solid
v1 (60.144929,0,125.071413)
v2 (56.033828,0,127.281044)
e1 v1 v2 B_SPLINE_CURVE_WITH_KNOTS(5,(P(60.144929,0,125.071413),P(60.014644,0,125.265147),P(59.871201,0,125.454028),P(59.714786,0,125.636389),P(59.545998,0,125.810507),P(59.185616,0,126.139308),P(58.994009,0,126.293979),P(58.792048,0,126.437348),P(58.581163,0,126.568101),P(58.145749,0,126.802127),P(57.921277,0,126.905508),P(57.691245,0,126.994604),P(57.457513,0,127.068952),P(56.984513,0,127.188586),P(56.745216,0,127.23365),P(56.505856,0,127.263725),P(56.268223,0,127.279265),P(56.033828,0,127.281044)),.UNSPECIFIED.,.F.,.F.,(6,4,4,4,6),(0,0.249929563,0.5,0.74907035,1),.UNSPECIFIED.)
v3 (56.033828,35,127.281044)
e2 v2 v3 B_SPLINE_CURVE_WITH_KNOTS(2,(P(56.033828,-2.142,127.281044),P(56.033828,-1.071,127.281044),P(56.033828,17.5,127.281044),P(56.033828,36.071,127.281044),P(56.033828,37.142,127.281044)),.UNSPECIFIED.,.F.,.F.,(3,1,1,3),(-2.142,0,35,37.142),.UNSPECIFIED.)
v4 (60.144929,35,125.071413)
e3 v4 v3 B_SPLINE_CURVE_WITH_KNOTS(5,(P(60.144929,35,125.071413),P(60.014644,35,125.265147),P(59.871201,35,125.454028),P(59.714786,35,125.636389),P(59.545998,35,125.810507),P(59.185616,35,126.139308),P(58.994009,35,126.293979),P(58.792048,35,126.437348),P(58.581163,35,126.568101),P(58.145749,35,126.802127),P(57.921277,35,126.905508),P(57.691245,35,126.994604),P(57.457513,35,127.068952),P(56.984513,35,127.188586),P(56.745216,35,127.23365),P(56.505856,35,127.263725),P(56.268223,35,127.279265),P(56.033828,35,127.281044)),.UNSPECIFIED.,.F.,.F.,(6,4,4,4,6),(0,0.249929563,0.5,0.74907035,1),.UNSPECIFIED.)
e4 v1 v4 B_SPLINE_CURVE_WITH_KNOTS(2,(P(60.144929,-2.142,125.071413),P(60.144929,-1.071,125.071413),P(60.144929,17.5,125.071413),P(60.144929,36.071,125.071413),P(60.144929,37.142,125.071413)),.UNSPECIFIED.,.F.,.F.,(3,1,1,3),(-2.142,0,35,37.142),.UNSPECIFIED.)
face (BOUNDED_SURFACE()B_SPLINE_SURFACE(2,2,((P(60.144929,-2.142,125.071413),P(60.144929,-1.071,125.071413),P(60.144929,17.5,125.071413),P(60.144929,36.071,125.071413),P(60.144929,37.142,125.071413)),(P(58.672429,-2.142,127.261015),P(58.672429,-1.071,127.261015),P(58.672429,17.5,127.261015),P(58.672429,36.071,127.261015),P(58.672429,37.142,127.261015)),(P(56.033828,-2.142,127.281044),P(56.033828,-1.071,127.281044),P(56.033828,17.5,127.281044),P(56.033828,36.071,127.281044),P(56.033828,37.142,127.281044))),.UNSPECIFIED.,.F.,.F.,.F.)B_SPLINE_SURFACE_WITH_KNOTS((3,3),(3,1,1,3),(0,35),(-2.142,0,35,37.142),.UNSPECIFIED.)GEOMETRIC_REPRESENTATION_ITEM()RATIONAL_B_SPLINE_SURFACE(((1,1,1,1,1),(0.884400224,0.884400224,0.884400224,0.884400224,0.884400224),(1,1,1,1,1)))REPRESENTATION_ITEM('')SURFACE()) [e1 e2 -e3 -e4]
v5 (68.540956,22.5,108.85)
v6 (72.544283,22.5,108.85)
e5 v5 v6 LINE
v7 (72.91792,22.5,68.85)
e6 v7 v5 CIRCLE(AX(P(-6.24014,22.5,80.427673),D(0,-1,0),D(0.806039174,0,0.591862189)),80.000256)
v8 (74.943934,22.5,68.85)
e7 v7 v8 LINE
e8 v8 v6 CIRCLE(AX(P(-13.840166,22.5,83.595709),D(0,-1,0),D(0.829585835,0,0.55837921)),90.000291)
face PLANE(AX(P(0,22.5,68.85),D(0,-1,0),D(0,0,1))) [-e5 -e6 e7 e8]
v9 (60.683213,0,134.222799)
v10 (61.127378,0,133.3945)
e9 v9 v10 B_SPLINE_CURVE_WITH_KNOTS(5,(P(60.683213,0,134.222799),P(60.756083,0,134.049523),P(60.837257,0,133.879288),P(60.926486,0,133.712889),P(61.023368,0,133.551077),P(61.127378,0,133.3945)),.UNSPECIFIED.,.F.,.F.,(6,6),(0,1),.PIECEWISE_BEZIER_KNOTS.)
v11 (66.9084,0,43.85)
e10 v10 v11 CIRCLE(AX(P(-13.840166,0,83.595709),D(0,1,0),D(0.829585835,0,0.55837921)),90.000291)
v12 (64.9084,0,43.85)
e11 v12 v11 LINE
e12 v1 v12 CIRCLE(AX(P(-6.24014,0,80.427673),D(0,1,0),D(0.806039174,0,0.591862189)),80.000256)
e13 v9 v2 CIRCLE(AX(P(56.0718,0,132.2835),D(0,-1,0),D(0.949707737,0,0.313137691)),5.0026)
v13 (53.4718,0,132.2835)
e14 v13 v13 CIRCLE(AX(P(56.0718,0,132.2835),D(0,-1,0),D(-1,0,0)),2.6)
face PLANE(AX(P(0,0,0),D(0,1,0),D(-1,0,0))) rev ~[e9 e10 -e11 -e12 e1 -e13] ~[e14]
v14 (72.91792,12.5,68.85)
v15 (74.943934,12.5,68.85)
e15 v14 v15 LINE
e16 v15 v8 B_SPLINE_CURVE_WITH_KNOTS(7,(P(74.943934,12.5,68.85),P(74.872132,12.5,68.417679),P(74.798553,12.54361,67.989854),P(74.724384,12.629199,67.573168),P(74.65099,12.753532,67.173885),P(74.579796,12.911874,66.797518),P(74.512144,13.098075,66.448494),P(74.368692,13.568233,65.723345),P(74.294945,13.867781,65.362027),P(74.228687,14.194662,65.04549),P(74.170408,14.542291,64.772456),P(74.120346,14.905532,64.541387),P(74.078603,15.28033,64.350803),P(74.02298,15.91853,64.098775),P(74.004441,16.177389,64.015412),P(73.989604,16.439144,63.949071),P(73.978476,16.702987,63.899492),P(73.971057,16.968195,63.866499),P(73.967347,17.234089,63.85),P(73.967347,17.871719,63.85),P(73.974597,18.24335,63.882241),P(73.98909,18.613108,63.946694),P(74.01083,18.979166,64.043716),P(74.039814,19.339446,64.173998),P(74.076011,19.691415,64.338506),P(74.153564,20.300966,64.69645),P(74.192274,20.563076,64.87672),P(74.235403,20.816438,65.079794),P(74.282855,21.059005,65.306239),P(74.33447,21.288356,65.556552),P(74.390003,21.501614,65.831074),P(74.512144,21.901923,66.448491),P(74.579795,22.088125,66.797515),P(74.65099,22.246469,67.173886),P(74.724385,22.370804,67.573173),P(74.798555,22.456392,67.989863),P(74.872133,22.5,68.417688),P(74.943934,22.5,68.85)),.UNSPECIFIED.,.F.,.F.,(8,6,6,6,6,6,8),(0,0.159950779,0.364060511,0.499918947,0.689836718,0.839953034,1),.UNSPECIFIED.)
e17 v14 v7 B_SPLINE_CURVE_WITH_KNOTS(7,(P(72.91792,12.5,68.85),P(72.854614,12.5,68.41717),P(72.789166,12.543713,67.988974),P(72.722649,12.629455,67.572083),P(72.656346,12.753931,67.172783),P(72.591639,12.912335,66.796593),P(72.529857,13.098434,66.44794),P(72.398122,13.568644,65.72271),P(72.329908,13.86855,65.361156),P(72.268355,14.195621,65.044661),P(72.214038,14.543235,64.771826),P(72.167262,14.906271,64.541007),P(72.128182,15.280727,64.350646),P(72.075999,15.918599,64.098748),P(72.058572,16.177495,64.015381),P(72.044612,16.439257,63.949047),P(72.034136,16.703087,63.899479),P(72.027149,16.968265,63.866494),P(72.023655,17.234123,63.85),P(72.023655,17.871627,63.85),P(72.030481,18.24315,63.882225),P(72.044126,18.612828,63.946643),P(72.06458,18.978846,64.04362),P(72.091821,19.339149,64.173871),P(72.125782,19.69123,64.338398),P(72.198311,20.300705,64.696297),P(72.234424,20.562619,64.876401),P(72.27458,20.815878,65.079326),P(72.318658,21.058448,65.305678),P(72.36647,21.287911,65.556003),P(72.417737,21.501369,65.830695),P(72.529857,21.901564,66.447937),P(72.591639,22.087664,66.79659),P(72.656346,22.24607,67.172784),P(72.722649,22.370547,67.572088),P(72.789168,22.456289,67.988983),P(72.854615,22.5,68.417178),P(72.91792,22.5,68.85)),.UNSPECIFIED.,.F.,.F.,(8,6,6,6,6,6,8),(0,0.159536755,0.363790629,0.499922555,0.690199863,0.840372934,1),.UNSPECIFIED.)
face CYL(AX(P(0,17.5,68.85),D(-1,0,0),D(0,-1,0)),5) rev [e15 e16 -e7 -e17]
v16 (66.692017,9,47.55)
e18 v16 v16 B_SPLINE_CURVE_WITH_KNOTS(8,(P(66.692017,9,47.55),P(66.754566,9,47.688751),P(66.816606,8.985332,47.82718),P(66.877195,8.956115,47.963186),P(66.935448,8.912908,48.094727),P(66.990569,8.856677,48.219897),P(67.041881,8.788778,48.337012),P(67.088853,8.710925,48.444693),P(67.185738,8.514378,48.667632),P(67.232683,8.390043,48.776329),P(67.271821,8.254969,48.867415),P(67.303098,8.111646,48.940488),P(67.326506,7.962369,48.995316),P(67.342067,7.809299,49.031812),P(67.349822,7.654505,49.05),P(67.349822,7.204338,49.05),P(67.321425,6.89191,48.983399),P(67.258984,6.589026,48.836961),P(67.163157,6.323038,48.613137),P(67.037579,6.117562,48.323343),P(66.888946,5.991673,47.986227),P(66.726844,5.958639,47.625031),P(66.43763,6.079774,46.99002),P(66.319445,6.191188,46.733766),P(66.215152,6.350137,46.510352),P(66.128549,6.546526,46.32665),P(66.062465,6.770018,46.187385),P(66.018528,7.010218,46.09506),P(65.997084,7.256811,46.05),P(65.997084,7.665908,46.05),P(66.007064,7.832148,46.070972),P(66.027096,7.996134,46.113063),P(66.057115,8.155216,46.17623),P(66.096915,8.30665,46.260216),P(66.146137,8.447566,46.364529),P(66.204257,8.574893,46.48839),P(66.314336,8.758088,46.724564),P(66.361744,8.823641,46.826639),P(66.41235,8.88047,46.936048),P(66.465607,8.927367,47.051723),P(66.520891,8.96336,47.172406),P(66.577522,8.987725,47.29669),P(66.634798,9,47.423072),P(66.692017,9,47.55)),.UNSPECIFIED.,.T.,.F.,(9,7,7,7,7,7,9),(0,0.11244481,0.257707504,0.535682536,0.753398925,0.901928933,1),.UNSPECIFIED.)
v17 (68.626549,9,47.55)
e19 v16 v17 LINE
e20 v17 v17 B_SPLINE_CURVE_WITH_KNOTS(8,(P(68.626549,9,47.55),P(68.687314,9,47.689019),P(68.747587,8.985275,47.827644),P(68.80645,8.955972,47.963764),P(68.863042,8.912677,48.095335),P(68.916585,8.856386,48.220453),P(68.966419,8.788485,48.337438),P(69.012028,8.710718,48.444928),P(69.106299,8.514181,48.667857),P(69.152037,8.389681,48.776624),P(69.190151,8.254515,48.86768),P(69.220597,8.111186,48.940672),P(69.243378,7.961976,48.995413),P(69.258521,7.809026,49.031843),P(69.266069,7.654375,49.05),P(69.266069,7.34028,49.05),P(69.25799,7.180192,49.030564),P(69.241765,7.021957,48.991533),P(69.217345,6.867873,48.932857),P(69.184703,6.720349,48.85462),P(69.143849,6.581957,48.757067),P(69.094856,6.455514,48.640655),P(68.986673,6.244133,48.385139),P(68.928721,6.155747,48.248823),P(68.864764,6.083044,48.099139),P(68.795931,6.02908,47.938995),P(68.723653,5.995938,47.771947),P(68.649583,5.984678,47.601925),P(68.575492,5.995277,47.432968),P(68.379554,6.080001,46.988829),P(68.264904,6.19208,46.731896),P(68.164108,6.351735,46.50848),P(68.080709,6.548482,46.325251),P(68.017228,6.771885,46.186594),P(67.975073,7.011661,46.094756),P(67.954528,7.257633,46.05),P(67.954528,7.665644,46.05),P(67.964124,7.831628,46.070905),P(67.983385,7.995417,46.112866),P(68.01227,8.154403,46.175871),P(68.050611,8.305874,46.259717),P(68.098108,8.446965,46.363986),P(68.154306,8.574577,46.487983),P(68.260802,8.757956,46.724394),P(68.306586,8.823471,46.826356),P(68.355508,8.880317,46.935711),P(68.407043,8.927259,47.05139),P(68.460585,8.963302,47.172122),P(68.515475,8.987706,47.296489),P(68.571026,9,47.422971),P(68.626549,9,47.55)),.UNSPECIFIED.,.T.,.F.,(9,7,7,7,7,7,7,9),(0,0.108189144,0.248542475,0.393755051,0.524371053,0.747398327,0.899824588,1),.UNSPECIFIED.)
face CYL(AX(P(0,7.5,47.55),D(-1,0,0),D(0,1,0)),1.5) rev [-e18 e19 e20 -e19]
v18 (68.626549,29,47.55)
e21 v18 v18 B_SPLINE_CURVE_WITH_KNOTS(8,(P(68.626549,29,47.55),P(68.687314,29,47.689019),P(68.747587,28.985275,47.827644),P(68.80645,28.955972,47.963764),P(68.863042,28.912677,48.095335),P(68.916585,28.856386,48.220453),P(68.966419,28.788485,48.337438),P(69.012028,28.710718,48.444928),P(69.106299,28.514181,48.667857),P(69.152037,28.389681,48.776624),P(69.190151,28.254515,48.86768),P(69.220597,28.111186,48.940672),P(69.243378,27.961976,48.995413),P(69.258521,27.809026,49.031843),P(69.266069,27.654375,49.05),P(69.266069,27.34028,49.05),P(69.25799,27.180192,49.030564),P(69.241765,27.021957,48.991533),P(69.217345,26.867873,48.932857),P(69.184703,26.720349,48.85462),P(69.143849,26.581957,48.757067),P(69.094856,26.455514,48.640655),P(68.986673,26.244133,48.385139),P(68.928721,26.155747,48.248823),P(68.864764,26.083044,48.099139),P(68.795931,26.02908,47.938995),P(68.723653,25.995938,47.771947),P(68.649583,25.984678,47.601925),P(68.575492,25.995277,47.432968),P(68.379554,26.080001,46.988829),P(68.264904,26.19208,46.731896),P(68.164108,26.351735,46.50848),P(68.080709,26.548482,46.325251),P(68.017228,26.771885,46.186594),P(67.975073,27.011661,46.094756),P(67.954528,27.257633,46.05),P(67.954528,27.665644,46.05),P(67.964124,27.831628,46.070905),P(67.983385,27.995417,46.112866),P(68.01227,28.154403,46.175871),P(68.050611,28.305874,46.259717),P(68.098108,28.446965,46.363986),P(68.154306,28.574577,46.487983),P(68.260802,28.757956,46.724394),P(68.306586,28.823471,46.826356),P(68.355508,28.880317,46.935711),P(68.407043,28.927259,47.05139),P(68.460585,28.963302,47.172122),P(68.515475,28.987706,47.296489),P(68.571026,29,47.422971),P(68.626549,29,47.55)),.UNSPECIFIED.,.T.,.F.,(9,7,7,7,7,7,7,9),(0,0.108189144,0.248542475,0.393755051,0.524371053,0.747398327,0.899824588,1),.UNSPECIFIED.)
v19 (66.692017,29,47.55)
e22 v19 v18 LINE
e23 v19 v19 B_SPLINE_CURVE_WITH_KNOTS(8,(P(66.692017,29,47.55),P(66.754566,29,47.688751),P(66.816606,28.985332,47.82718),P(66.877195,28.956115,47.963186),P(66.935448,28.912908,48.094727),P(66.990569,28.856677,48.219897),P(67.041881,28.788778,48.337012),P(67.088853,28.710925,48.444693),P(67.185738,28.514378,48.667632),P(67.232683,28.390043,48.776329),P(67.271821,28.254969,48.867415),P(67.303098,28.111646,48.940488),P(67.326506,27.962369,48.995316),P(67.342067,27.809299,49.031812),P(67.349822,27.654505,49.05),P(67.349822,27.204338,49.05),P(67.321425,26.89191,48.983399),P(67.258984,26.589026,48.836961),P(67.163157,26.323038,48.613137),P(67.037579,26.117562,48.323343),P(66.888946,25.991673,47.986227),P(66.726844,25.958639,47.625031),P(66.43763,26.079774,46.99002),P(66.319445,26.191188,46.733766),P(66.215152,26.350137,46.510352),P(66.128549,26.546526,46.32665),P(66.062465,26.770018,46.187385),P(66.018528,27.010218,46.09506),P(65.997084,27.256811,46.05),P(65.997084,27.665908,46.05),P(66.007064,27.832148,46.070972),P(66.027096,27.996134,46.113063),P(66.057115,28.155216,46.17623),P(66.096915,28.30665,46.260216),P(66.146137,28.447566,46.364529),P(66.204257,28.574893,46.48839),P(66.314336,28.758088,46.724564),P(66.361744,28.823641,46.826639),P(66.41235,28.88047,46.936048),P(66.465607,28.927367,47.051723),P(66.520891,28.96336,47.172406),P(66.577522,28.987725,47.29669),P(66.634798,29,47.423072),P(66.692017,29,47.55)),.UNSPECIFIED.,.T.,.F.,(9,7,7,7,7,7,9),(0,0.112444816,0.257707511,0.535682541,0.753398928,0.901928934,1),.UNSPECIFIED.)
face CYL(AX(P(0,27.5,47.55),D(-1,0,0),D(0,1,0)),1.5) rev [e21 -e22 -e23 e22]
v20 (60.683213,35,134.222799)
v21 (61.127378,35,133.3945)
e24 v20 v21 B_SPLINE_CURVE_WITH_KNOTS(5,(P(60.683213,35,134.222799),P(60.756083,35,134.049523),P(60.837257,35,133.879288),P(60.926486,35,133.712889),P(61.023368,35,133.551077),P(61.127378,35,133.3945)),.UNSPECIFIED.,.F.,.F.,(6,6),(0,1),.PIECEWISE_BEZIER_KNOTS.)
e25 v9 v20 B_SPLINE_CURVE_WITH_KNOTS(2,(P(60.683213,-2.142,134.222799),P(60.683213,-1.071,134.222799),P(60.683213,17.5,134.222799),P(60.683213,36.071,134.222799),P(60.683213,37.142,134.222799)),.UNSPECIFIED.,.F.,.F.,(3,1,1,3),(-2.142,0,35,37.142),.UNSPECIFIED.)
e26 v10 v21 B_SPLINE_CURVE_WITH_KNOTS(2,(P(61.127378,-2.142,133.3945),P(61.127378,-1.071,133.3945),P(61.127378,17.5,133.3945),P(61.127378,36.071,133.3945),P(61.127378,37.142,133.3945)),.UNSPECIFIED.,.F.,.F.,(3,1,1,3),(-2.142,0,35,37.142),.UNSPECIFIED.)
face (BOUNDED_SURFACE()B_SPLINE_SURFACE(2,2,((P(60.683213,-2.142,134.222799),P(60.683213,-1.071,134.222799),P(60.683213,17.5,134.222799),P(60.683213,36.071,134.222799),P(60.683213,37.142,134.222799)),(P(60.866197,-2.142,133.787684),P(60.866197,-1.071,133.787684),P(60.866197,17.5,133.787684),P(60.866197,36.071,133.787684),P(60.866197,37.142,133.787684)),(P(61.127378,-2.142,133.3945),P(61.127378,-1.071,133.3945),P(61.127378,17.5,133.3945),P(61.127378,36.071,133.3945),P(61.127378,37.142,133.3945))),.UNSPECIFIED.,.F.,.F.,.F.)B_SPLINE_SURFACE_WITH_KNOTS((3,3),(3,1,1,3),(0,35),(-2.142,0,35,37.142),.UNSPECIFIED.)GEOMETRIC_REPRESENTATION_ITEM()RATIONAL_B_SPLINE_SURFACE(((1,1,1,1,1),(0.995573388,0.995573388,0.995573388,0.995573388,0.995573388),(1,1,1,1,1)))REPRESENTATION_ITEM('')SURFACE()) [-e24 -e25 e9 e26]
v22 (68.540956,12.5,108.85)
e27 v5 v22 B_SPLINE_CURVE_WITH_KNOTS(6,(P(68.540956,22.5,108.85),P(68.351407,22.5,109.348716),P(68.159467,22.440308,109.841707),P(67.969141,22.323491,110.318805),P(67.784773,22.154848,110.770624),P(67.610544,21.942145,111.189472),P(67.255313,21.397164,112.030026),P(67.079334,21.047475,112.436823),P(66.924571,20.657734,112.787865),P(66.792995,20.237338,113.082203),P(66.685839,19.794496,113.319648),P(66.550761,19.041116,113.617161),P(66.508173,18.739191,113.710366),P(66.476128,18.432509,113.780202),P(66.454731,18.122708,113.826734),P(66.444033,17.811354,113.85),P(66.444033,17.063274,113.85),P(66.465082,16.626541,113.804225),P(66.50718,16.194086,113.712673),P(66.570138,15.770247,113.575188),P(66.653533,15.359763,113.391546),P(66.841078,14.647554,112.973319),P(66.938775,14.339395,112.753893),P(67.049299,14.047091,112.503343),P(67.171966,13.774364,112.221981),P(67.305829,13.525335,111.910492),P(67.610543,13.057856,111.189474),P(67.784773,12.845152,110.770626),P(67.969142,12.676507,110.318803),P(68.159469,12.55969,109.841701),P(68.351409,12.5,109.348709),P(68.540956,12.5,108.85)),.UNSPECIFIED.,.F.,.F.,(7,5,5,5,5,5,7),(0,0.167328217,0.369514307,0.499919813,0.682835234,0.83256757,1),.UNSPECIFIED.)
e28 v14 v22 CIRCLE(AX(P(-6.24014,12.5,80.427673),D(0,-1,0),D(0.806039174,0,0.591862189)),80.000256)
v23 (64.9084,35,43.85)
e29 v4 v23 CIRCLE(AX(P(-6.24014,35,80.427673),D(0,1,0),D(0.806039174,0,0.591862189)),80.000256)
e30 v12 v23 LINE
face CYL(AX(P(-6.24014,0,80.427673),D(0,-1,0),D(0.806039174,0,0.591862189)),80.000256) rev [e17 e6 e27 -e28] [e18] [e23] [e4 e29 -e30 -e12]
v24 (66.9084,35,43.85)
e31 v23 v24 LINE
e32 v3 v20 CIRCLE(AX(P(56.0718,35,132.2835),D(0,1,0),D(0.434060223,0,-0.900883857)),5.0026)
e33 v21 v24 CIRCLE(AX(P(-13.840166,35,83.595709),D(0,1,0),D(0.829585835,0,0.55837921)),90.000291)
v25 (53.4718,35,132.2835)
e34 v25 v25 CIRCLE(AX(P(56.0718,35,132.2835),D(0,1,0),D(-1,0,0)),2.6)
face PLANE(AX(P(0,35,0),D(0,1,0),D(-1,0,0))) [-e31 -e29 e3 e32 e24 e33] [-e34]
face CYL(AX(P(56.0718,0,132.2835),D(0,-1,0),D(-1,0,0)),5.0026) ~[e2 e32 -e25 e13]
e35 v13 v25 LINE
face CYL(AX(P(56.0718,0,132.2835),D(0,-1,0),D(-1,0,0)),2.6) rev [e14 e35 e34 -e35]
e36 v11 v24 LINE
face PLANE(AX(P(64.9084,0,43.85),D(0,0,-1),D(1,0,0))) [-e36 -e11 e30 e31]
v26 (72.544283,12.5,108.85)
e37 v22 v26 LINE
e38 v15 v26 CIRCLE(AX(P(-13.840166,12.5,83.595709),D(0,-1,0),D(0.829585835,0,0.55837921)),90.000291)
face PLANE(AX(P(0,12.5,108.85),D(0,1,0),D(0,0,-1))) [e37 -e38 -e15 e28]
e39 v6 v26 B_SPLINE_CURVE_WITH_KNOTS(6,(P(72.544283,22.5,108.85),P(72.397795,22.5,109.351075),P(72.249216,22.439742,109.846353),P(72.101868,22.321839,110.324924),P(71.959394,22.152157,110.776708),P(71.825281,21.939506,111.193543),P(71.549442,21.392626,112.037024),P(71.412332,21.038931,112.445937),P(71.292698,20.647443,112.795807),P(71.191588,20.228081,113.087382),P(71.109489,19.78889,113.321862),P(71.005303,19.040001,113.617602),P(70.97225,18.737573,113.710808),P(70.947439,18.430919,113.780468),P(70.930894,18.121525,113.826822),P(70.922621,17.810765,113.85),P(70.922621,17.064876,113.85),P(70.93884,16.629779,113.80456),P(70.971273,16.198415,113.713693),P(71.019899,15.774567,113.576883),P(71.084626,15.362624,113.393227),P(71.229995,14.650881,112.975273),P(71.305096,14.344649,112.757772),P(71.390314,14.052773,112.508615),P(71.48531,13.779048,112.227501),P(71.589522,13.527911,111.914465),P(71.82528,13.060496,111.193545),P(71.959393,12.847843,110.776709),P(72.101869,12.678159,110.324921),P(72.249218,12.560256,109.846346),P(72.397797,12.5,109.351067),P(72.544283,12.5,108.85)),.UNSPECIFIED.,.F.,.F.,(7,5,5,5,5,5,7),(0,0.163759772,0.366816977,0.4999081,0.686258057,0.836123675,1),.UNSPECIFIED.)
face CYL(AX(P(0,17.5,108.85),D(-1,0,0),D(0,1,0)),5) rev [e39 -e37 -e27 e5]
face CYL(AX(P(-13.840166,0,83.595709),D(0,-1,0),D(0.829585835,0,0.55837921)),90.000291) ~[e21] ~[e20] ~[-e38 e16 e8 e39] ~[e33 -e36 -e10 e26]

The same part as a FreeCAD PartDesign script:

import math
import FreeCAD as App
import Part
import Sketcher

V = App.Vector


def edges_at(feature, points):
    """Names of the edges that pass closest to the given points."""
    edges = feature.Shape.Edges
    near = lambda p: min(range(len(edges)), key=lambda i: edges[i].distToShape(Part.Vertex(*p))[0])
    return sorted({f"Edge{near(p) + 1}" for p in points})

doc = App.newDocument("Part")
body = doc.addObject("PartDesign::Body", "Body")

sketch1 = body.newObject("Sketcher::SketchObject", "Sketch")
sketch1.AttachmentSupport = (doc.getObject("XZ_Plane"), [""])
sketch1.MapMode = "FlatFace"
sketch1.addGeometry(Part.ArcOfCircle(Part.Circle(V(-13.8, 83.6, 0), V(0, 0, 1), 90), math.radians(-26), math.radians(34)), False)
sketch1.addGeometry(Part.LineSegment(V(66.9, 43.9, 0), V(64.9, 43.9, 0)), False)
sketch1.addGeometry(Part.ArcOfCircle(Part.Circle(V(-6.2, 80.4, 0), V(0, 0, 1), 80), math.radians(-27), math.radians(36)), False)
sketch1.addGeometry(Part.ArcOfCircle(Part.Circle(V(56.1, 132.3, 0), V(0, 0, 1), 5), math.radians(18), math.radians(296)), False)
sketch1.addGeometry(Part.Circle(V(56.1, 132.3, 0), V(0, 0, 1), 2.6), False)
sketch1.addConstraint(Sketcher.Constraint("Coincident", 0, 1, 1, 1))
sketch1.addConstraint(Sketcher.Constraint("Coincident", 1, 2, 2, 1))
sketch1.addConstraint(Sketcher.Constraint("Coincident", 2, 2, 3, 2))
sketch1.addConstraint(Sketcher.Constraint("Coincident", 3, 1, 0, 2))
sketch1.addConstraint(Sketcher.Constraint("Horizontal", 1))
sketch1.addConstraint(Sketcher.Constraint("Coincident", 4, 3, 3, 3))
sketch1.addConstraint(Sketcher.Constraint("Radius", 0, 90.0))
sketch1.addConstraint(Sketcher.Constraint("Radius", 2, 80.0))
sketch1.addConstraint(Sketcher.Constraint("Diameter", 4, 5.2))
sketch1.addConstraint(Sketcher.Constraint("DistanceX", 1, 2, 1, 1, 2.0))
sketch1.addConstraint(Sketcher.Constraint("Radius", 3, 5.0026))
sketch1.addConstraint(Sketcher.Constraint("DistanceX", 0, 3, 2, 3, 7.6))
sketch1.addConstraint(Sketcher.Constraint("DistanceY", 3, 3, 3, 1, 1.5665))
sketch1.addConstraint(Sketcher.Constraint("DistanceX", 0, 3, -1, 1, 13.84))
sketch1.addConstraint(Sketcher.Constraint("DistanceY", -1, 1, 0, 1, 43.85))
sketch1.addConstraint(Sketcher.Constraint("DistanceY", -1, 1, 3, 1, 133.85))
sketch1.addConstraint(Sketcher.Constraint("DistanceY", 2, 3, 0, 3, 3.168))
pad1 = body.newObject("PartDesign::Pad", "Pad")
pad1.Profile = sketch1
pad1.Length = 35
pad1.Reversed = True

sketch2 = body.newObject("Sketcher::SketchObject", "Sketch001")
sketch2.AttachmentSupport = (doc.getObject("YZ_Plane"), [""])
sketch2.MapMode = "FlatFace"
sketch2.addGeometry(Part.Circle(V(27.5, 47.5, 0), V(0, 0, 1), 1.5), False)
sketch2.addGeometry(Part.Circle(V(7.5, 47.5, 0), V(0, 0, 1), 1.5), False)
sketch2.addGeometry(Part.ArcOfCircle(Part.Circle(V(17.5, 68.8, 0), V(0, 0, 1), 5), math.radians(180), math.radians(360)), False)
sketch2.addGeometry(Part.LineSegment(V(22.5, 68.8, 0), V(22.5, 108.8, 0)), False)
sketch2.addGeometry(Part.ArcOfCircle(Part.Circle(V(17.5, 108.8, 0), V(0, 0, 1), 5), math.radians(0), math.radians(180)), False)
sketch2.addGeometry(Part.LineSegment(V(12.5, 108.8, 0), V(12.5, 68.8, 0)), False)
sketch2.addConstraint(Sketcher.Constraint("Tangent", 2, 2, 3, 1))
sketch2.addConstraint(Sketcher.Constraint("Tangent", 3, 2, 4, 1))
sketch2.addConstraint(Sketcher.Constraint("Tangent", 4, 2, 5, 1))
sketch2.addConstraint(Sketcher.Constraint("Tangent", 5, 2, 2, 1))
sketch2.addConstraint(Sketcher.Constraint("Vertical", 3))
sketch2.addConstraint(Sketcher.Constraint("Vertical", 5))
sketch2.addConstraint(Sketcher.Constraint("Equal", 0, 1))
sketch2.addConstraint(Sketcher.Constraint("Horizontal", 0, 3, 1, 3))
sketch2.addConstraint(Sketcher.Constraint("Diameter", 0, 3.0))
sketch2.addConstraint(Sketcher.Constraint("Radius", 2, 5.0))
sketch2.addConstraint(Sketcher.Constraint("DistanceY", 3, 1, 3, 2, 40.0))
sketch2.addConstraint(Sketcher.Constraint("DistanceX", 1, 3, 0, 3, 20.0))
sketch2.addConstraint(Sketcher.Constraint("DistanceX", 2, 3, 0, 3, 10.0))
sketch2.addConstraint(Sketcher.Constraint("DistanceX", -1, 1, 1, 3, 7.5))
sketch2.addConstraint(Sketcher.Constraint("DistanceY", 0, 3, 2, 3, 21.3))
sketch2.addConstraint(Sketcher.Constraint("DistanceY", -1, 1, 0, 3, 47.55))
pocket1 = body.newObject("PartDesign::Pocket", "Pocket")
pocket1.Profile = sketch2
pocket1.Length = 94.5
pocket1.Reversed = True
doc.recompute()

fillet = body.newObject("PartDesign::Fillet", "Fillet")
fillet.Base = (pocket1, edges_at(pocket1, [(58.243, 17.5, 127.777)]))
fillet.Radius = 5
doc.recompute()

fillet2 = body.newObject("PartDesign::Fillet", "Fillet001")
fillet2.Base = (fillet, edges_at(fillet, [(60.823, 17.5, 133.85)]))
fillet2.Radius = 5

doc.recompute()
